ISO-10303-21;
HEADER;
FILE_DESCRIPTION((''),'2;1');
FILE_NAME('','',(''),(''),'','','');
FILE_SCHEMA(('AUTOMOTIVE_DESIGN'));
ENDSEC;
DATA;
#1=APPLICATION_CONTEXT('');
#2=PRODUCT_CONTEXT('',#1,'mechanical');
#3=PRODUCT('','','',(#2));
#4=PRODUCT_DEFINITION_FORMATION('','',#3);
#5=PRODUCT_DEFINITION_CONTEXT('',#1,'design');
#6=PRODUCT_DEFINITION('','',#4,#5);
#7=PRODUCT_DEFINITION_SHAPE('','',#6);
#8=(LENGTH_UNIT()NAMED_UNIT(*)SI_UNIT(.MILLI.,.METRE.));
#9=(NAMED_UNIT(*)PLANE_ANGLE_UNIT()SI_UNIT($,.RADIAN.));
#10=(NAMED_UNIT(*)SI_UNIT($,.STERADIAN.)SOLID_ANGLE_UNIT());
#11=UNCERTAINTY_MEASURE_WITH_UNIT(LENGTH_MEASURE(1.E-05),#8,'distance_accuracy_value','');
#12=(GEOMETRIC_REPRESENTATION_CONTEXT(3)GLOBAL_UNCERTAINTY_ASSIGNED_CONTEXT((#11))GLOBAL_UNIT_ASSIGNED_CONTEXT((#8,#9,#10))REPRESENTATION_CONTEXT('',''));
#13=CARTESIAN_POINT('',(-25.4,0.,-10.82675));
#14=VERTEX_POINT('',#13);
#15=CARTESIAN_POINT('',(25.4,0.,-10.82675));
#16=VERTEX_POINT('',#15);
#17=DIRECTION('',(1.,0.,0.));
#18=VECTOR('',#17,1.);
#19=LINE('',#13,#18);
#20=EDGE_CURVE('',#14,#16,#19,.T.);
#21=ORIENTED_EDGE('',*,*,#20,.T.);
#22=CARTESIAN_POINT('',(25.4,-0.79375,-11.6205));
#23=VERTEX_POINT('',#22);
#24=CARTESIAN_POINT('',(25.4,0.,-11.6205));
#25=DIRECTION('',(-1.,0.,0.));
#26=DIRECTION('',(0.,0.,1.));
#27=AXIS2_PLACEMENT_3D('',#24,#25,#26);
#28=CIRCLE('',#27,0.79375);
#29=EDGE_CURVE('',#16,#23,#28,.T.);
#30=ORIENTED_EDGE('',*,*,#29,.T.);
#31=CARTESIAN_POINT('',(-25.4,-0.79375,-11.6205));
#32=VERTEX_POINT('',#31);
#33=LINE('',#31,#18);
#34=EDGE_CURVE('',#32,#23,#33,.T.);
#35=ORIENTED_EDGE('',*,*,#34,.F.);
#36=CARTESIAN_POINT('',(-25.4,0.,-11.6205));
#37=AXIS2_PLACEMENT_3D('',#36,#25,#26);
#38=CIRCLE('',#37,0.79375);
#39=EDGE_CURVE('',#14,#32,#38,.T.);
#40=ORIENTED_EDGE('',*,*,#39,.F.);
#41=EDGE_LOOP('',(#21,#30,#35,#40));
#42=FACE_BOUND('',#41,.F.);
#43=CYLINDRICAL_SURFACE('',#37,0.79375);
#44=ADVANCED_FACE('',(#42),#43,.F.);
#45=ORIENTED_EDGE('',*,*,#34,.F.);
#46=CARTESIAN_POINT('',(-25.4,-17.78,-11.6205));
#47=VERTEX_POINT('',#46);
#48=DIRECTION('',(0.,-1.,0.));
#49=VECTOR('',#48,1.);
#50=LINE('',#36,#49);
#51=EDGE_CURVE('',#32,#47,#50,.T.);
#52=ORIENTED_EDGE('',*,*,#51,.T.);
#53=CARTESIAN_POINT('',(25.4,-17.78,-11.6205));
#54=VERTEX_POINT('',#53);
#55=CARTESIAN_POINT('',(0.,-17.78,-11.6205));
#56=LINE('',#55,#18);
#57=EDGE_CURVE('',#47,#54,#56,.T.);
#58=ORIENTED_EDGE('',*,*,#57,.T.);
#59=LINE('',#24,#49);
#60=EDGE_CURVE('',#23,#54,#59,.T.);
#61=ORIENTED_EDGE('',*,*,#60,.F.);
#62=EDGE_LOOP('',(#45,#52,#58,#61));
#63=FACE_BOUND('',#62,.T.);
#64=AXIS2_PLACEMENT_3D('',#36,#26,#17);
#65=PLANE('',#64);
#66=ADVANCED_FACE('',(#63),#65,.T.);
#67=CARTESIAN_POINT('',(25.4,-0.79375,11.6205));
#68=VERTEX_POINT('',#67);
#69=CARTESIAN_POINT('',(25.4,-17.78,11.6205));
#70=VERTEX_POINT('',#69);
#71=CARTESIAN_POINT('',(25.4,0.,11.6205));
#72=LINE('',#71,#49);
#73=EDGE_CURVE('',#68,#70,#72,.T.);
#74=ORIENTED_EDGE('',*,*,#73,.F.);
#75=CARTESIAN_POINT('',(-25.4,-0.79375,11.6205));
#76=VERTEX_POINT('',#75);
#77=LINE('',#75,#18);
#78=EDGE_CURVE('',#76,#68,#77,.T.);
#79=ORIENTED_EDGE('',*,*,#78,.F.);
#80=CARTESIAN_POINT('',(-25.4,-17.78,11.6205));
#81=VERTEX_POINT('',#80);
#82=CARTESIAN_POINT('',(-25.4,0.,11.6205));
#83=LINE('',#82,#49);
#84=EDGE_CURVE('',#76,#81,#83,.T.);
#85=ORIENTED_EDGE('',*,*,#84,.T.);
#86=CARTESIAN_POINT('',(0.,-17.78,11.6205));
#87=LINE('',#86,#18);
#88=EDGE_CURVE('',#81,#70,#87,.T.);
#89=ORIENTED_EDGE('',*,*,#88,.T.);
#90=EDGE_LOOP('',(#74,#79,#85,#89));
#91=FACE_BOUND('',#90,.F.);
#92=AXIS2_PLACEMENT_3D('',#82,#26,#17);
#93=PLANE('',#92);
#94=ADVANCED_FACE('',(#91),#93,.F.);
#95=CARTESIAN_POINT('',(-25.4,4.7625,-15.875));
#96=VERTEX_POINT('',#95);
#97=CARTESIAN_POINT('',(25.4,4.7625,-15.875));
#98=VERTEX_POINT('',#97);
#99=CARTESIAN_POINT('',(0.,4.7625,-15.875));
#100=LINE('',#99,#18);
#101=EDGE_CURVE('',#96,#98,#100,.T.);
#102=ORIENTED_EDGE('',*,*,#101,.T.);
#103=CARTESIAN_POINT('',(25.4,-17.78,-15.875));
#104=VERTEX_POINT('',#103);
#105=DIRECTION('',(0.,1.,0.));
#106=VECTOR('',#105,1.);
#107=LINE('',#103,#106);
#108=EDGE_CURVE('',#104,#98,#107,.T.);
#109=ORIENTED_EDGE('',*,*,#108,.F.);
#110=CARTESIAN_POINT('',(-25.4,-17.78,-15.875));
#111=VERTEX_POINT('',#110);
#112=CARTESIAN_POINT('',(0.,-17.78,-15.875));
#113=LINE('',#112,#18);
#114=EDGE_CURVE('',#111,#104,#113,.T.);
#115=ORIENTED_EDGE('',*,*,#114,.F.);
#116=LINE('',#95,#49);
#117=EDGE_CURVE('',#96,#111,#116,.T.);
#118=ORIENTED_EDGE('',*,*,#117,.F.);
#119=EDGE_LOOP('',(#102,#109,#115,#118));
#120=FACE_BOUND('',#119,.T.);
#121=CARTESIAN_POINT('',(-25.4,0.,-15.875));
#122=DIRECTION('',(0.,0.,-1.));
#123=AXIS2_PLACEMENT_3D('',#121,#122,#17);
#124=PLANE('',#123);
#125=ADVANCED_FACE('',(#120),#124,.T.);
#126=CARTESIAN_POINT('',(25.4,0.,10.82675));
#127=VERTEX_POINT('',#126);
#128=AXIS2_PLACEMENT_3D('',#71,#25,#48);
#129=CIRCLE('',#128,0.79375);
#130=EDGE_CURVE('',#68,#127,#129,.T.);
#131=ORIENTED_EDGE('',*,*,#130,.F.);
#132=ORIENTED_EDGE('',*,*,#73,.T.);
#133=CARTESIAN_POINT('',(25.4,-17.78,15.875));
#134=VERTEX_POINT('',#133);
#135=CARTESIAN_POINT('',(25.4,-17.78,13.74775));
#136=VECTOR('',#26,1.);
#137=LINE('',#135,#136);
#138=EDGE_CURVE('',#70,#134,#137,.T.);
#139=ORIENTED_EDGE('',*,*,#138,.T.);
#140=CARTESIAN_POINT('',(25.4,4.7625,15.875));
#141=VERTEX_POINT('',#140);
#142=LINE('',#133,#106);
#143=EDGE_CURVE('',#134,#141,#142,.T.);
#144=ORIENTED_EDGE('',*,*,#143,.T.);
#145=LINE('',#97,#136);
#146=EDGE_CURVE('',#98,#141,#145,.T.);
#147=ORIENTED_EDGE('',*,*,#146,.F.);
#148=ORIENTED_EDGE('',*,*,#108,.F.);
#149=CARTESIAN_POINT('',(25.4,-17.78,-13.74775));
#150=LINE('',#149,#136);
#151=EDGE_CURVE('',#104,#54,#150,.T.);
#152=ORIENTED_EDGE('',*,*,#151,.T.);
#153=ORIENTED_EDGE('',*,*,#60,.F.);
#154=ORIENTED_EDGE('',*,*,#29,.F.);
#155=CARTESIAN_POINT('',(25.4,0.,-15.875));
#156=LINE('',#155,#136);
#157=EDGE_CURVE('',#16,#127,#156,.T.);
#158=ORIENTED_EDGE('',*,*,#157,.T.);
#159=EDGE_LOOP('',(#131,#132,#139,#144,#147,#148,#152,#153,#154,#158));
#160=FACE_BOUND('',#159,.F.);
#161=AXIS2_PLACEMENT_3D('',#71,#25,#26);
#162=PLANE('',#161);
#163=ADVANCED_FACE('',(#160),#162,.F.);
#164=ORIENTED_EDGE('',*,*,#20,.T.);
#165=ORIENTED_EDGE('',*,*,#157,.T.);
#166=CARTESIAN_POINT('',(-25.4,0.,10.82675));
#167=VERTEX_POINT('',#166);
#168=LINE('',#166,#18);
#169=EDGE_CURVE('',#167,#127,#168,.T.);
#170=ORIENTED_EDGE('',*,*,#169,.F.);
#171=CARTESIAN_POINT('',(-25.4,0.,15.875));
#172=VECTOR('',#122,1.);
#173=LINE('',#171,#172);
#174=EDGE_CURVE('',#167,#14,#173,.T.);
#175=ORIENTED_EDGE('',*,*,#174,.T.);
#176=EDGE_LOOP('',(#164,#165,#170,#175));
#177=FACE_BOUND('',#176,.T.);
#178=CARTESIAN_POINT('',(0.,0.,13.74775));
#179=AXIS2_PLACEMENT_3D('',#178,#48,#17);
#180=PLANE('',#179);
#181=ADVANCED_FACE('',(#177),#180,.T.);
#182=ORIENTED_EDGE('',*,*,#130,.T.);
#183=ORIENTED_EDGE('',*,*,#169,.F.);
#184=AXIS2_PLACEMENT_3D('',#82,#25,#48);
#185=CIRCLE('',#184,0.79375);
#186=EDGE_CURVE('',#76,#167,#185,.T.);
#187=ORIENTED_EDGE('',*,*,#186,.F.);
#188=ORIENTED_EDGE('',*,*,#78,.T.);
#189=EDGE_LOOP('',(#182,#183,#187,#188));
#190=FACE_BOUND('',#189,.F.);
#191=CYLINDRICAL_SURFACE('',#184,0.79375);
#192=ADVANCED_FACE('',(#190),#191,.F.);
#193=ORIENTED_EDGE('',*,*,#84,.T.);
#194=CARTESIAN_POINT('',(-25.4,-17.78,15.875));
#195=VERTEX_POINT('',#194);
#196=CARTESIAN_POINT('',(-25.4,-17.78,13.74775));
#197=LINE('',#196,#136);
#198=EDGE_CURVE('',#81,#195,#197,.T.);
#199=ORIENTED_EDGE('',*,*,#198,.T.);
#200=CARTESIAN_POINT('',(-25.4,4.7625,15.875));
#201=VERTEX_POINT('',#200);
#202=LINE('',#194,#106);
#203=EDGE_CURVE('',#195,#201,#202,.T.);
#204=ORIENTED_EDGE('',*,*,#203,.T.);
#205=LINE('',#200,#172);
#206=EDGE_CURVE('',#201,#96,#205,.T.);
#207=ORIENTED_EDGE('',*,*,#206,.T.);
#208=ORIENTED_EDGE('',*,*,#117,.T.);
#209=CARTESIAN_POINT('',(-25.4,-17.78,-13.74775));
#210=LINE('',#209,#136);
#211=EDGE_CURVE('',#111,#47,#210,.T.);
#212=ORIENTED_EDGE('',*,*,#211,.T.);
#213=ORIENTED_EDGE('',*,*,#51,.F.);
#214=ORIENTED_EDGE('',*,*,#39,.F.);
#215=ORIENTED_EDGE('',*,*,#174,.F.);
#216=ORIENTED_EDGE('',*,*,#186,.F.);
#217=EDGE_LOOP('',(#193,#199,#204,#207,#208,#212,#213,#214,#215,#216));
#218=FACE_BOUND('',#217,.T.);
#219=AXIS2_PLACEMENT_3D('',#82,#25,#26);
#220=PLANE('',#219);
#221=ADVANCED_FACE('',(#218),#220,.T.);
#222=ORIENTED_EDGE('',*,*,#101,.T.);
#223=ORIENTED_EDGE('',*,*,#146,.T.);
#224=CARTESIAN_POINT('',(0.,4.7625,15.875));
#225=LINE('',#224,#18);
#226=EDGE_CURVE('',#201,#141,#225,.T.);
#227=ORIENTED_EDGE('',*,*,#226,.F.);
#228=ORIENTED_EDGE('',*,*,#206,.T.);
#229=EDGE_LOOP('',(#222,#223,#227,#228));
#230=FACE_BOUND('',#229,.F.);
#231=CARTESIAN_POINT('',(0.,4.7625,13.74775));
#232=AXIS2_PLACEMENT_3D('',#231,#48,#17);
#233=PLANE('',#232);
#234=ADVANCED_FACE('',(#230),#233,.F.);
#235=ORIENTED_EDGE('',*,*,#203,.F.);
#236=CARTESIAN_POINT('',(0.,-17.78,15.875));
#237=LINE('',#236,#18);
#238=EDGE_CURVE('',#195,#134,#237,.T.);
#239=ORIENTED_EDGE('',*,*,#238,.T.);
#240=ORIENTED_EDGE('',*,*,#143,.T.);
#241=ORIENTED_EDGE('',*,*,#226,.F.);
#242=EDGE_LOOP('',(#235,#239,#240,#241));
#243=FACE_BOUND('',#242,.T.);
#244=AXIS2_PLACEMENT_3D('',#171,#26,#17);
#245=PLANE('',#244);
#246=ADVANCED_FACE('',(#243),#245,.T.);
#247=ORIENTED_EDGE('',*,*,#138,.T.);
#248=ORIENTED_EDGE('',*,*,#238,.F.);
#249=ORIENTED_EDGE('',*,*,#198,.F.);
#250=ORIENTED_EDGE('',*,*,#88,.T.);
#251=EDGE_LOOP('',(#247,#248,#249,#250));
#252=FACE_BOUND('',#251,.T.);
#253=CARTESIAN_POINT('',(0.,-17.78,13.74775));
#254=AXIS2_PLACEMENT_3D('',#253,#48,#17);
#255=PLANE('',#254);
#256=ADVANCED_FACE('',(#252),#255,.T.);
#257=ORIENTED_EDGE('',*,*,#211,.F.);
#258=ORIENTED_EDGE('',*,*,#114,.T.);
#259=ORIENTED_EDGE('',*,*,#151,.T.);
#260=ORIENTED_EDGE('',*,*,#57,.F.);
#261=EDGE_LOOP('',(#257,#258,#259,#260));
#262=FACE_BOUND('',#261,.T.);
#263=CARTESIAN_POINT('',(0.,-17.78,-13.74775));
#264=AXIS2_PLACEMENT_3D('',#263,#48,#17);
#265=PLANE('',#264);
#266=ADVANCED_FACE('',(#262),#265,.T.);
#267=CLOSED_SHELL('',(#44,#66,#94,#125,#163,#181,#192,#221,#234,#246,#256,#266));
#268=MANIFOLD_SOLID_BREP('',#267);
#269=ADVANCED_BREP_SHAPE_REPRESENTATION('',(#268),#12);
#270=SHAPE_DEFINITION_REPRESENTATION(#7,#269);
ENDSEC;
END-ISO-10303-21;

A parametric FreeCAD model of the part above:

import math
import FreeCAD as App
import Part
import Sketcher
from FreeCAD import Vector
Q = App.Units.Quantity

doc = App.newDocument("Part")
params = doc.addObject("Spreadsheet::Sheet", "Params")
for row, (alias, value) in enumerate([
    ("sketch1_width", "2 in"),
    ("sketch1_height", "1.25 in"),
    ("pad1_length", "0.1875 in"),
    ("sketch2_width", "2 in"),
    ("pad2_length", "0.7 in"),
    ("sketch3_radius", "0.03125 in"),
], start=1):
    params.set(f"A{row}", alias)
    params.set(f"B{row}", "=" + value)
    params.setAlias(f"B{row}", alias)

body = doc.addObject("PartDesign::Body", "Body")

sketch1 = body.newObject("Sketcher::SketchObject", "Sketch")
sketch1.AttachmentSupport = (doc.getObject("XZ_Plane"), [""])
sketch1.MapMode = "FlatFace"
sketch1.addGeometry([
    Part.LineSegment(Vector(-25, 16, 0), Vector(-25, -16, 0)),
    Part.LineSegment(Vector(-25, -16, 0), Vector(25, -16, 0)),
    Part.LineSegment(Vector(25, -16, 0), Vector(25, 16, 0)),
    Part.LineSegment(Vector(25, 16, 0), Vector(-25, 16, 0)),
], False)
sketch1.addConstraint([
    Sketcher.Constraint("Coincident", 0, 2, 1, 1),
    Sketcher.Constraint("Coincident", 1, 2, 2, 1),
    Sketcher.Constraint("Coincident", 2, 2, 3, 1),
    Sketcher.Constraint("Coincident", 3, 2, 0, 1),
    Sketcher.Constraint("Vertical", 0),
    Sketcher.Constraint("Horizontal", 1),
    Sketcher.Constraint("Vertical", 2),
    Sketcher.Constraint("Horizontal", 3),
    Sketcher.Constraint("Symmetric", 0, 2, 2, 2, -1, 1),
    Sketcher.Constraint("DistanceX", 1, 1, 1, 2, Q("2 in")),
    Sketcher.Constraint("DistanceY", 0, 2, 0, 1, Q("1.25 in")),
])
sketch1.setExpression("Constraints[9]", "Params.sketch1_width")
sketch1.setExpression("Constraints[10]", "Params.sketch1_height")
pad1 = body.newObject("PartDesign::Pad", "Pad")
pad1.Profile = sketch1
pad1.setExpression("Length", "Params.pad1_length")
pad1.Reversed = True

sketch2 = body.newObject("Sketcher::SketchObject", "Sketch001")
sketch2.AttachmentSupport = (doc.getObject("XZ_Plane"), [""])
sketch2.MapMode = "FlatFace"
sketch2.addGeometry([
    Part.LineSegment(Vector(-25.4, 15.9, 0), Vector(-25.4, 11.6, 0)),
    Part.LineSegment(Vector(-25.4, 11.6, 0), Vector(25.4, 11.6, 0)),
    Part.LineSegment(Vector(25.4, 11.6, 0), Vector(25.4, 15.9, 0)),
    Part.LineSegment(Vector(25.4, 15.9, 0), Vector(-25.4, 15.9, 0)),
    Part.LineSegment(Vector(-25.4, -11.6, 0), Vector(-25.4, -15.9, 0)),
    Part.LineSegment(Vector(-25.4, -15.9, 0), Vector(25.4, -15.9, 0)),
    Part.LineSegment(Vector(25.4, -15.9, 0), Vector(25.4, -11.6, 0)),
    Part.LineSegment(Vector(25.4, -11.6, 0), Vector(-25.4, -11.6, 0)),
], False)
sketch2.addConstraint([
    Sketcher.Constraint("Coincident", 0, 2, 1, 1),
    Sketcher.Constraint("Coincident", 1, 2, 2, 1),
    Sketcher.Constraint("Coincident", 2, 2, 3, 1),
    Sketcher.Constraint("Coincident", 3, 2, 0, 1),
    Sketcher.Constraint("Coincident", 4, 2, 5, 1),
    Sketcher.Constraint("Coincident", 5, 2, 6, 1),
    Sketcher.Constraint("Coincident", 6, 2, 7, 1),
    Sketcher.Constraint("Coincident", 7, 2, 4, 1),
    Sketcher.Constraint("Vertical", 0),
    Sketcher.Constraint("Horizontal", 1),
    Sketcher.Constraint("Vertical", 2),
    Sketcher.Constraint("Horizontal", 3),
    Sketcher.Constraint("Vertical", 4),
    Sketcher.Constraint("Horizontal", 5),
    Sketcher.Constraint("Vertical", 6),
    Sketcher.Constraint("Horizontal", 7),
    Sketcher.Constraint("Symmetric", 2, 2, 4, 2, -1, 1),
    Sketcher.Constraint("Symmetric", 0, 2, 6, 2, -1, 1),
    Sketcher.Constraint("Vertical", 3, 2, 4, 2),
    Sketcher.Constraint("DistanceX", 1, 1, 1, 2, Q("2 in")),
    Sketcher.Constraint("DistanceY", 4, 2, 3, 2, Q("1.25 in")),
    Sketcher.Constraint("DistanceY", 0, 2, 0, 1, Q("0.1675 in")),
])
sketch2.setExpression("Constraints[19]", "Params.sketch2_width")
pad2 = body.newObject("PartDesign::Pad", "Pad001")
pad2.Profile = sketch2
pad2.setExpression("Length", "Params.pad2_length")

sketch3 = body.newObject("Sketcher::SketchObject", "Sketch002")
sketch3.AttachmentSupport = (doc.getObject("YZ_Plane"), [""])
sketch3.MapMode = "FlatFace"
sketch3.AttachmentOffset = App.Placement(Vector(0, 0, -1 * 25.4), App.Rotation())
sketch3.addGeometry([
    Part.LineSegment(Vector(0, 11.6, 0), Vector(-0.8, 11.6, 0)),
    Part.ArcOfCircle(Part.Circle(Vector(0, 11.6, 0), Vector(0, 0, 1), 0.8), math.radians(-90), math.radians(180)),
    Part.LineSegment(Vector(0, 10.8, 0), Vector(0, 11.6, 0)),
    Part.LineSegment(Vector(0, -11.6, 0), Vector(0, -10.8, 0)),
    Part.ArcOfCircle(Part.Circle(Vector(0, -11.6, 0), Vector(0, 0, 1), 0.8), math.radians(180), math.radians(450)),
    Part.LineSegment(Vector(-0.8, -11.6, 0), Vector(0, -11.6, 0)),
], False)
sketch3.addConstraint([
    Sketcher.Constraint("Coincident", 0, 2, 1, 2),
    Sketcher.Constraint("Coincident", 1, 1, 2, 1),
    Sketcher.Constraint("Coincident", 2, 2, 0, 1),
    Sketcher.Constraint("Coincident", 3, 2, 4, 2),
    Sketcher.Constraint("Coincident", 4, 1, 5, 1),
    Sketcher.Constraint("Coincident", 5, 2, 3, 1),
    Sketcher.Constraint("Horizontal", 0),
    Sketcher.Constraint("Vertical", 2),
    Sketcher.Constraint("Vertical", 3),
    Sketcher.Constraint("Horizontal", 5),
    Sketcher.Constraint("Coincident", 2, 2, 1, 3),
    Sketcher.Constraint("Coincident", 5, 2, 4, 3),
    Sketcher.Constraint("Equal", 1, 4),
    Sketcher.Constraint("Symmetric", 1, 3, 4, 3, -1, 1),
    Sketcher.Constraint("PointOnObject", 1, 3, -2),
    Sketcher.Constraint("Radius", 1, Q("0.03125 in")),
    Sketcher.Constraint("DistanceY", 4, 3, 1, 3, Q("0.915 in")),
])
sketch3.setExpression("Constraints[15]", "Params.sketch3_radius")
pocket1 = body.newObject("PartDesign::Pocket", "Pocket")
pocket1.Profile = sketch3
pocket1.Type = "ThroughAll"
pocket1.Reversed = True

doc.recompute()
